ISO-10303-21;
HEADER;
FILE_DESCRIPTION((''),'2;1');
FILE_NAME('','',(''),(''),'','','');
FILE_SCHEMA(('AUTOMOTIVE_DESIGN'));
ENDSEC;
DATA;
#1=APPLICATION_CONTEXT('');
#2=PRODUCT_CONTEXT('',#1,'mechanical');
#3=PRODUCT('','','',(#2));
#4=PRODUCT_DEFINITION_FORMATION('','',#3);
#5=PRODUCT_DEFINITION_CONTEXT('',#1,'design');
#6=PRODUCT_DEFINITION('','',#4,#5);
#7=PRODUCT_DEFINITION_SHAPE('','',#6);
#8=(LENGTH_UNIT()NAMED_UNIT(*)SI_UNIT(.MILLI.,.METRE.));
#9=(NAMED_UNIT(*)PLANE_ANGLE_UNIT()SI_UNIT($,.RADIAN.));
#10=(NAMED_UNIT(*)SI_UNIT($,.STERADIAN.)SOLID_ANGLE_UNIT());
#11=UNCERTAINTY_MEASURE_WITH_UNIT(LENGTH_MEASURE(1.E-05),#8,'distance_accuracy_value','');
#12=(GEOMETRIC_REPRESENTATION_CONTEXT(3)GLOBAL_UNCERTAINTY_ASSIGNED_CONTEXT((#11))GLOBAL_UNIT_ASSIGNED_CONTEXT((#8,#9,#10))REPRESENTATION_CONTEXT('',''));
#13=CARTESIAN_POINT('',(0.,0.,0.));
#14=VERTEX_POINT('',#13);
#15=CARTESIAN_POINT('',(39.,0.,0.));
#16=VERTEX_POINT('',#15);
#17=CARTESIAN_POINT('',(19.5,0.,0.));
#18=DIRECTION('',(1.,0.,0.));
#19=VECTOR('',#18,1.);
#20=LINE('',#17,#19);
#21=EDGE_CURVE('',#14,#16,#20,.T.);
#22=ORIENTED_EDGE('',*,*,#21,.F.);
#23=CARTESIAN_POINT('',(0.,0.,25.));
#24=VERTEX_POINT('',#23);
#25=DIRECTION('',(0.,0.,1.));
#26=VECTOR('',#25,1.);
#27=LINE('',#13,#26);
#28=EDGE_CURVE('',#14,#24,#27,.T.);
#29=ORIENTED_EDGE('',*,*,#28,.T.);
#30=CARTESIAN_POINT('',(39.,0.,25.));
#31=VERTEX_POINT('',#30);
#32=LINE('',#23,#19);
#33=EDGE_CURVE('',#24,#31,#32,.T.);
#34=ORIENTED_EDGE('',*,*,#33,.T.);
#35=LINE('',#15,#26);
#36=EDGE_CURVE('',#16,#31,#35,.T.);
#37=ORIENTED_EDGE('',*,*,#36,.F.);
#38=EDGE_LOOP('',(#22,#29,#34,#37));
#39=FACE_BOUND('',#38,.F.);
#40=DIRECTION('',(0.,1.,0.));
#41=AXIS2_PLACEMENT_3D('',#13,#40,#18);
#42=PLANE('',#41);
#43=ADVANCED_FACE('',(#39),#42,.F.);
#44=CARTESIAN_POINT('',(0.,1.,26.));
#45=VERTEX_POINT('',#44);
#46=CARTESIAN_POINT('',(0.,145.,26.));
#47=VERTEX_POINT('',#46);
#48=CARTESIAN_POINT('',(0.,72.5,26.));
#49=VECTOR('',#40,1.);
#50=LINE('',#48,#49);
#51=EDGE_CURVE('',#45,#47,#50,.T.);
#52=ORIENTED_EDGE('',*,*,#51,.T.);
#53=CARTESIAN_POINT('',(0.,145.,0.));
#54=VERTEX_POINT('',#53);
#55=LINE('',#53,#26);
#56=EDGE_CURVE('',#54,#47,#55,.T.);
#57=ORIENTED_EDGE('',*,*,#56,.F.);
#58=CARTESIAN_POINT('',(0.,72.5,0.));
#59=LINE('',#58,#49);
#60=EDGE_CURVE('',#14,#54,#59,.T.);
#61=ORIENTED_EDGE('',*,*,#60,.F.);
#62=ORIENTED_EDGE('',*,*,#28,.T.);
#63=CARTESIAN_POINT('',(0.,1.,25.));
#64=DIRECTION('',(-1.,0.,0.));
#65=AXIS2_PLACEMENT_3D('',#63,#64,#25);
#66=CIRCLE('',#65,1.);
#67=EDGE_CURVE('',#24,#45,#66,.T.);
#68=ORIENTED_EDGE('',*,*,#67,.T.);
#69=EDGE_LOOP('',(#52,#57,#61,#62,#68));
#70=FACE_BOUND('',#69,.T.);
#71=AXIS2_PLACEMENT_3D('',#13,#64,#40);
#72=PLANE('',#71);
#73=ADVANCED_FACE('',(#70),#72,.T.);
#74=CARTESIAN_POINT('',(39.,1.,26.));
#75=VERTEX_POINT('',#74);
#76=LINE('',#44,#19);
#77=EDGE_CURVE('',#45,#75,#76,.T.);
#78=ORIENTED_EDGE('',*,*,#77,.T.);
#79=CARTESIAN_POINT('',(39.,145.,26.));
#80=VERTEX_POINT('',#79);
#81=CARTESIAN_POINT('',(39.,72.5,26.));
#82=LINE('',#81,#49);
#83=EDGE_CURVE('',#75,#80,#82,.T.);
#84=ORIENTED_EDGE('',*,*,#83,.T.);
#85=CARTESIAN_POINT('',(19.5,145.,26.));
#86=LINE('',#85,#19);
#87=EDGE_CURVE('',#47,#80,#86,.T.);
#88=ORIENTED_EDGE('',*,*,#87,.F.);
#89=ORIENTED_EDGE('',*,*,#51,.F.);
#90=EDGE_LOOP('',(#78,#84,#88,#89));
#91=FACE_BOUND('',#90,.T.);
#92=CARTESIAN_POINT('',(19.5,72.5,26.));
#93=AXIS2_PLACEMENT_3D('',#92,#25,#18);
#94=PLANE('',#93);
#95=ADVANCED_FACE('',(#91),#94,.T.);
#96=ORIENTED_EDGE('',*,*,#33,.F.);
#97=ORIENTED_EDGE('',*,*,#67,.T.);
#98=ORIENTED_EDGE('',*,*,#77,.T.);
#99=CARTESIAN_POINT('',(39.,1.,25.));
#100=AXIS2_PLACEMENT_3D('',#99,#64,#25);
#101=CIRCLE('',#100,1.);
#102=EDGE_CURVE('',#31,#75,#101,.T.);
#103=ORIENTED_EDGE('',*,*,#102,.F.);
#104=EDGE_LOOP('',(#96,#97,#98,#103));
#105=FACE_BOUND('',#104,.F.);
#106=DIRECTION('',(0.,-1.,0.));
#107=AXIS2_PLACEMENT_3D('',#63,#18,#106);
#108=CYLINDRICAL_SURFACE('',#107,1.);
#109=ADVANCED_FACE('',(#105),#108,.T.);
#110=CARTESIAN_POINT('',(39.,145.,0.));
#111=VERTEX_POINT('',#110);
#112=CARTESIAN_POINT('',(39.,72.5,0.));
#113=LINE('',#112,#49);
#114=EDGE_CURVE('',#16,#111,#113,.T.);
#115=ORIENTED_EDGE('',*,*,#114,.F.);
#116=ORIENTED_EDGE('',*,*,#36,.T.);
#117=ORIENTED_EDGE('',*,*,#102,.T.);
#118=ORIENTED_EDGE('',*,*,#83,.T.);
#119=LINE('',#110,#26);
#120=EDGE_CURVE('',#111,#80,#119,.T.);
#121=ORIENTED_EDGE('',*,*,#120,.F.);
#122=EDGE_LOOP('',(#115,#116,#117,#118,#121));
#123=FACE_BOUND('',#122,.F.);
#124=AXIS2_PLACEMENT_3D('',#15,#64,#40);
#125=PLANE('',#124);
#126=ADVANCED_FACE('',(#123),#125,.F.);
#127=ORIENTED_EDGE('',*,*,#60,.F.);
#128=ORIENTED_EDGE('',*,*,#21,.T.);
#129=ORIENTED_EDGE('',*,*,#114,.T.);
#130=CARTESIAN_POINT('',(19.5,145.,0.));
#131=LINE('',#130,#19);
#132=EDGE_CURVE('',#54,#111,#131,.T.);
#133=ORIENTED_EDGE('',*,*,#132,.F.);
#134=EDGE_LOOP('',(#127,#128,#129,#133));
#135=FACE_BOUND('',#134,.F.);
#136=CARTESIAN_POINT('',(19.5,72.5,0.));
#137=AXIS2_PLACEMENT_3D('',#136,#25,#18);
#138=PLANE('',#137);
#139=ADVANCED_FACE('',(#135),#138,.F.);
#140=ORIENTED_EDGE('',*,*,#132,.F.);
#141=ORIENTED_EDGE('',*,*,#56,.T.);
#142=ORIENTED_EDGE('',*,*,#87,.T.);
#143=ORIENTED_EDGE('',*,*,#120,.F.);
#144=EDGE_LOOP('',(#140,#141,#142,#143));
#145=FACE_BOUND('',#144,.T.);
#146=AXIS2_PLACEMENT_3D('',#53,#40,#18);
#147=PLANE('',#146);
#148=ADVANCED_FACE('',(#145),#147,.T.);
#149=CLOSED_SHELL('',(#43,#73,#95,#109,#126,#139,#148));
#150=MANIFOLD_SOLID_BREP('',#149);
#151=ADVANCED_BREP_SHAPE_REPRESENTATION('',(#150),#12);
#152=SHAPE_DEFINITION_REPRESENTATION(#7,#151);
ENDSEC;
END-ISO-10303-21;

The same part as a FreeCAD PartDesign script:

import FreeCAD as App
import Part
import Sketcher

V = App.Vector
Q = App.Units.Quantity


def edges_at(feature, points):
    """Names of the edges that pass closest to the given points."""
    edges = feature.Shape.Edges
    near = lambda p: min(range(len(edges)), key=lambda i: edges[i].distToShape(Part.Vertex(*p))[0])
    return sorted({f"Edge{near(p) + 1}" for p in points})

doc = App.newDocument("Part")
params = doc.addObject("Spreadsheet::Sheet", "Params")
for row, (alias, value) in enumerate([
    ("sketch1_width", "39 mm"),
    ("sketch1_height", "145 mm"),
    ("pad1_length", "26 mm"),
    ("fillet_radius", "1 mm"),
], start=1):
    params.set(f"A{row}", alias)
    params.set(f"B{row}", "=" + value)
    params.setAlias(f"B{row}", alias)

body = doc.addObject("PartDesign::Body", "Body")

sketch1 = doc.addObject("Sketcher::SketchObject", "Sketch")
body.addObject(sketch1)
sketch1.AttachmentSupport = (doc.XY_Plane, [""])
sketch1.MapMode = "FlatFace"
sketch1.addGeometry([
    Part.LineSegment(V(0, 145, 0), V(0, 0, 0)),
    Part.LineSegment(V(0, 0, 0), V(39, 0, 0)),
    Part.LineSegment(V(39, 0, 0), V(39, 145, 0)),
    Part.LineSegment(V(39, 145, 0), V(0, 145, 0)),
], False)
sketch1.addConstraint([
    Sketcher.Constraint("Coincident", 0, 2, 1, 1),
    Sketcher.Constraint("Coincident", 1, 2, 2, 1),
    Sketcher.Constraint("Coincident", 2, 2, 3, 1),
    Sketcher.Constraint("Coincident", 3, 2, 0, 1),
    Sketcher.Constraint("Vertical", 0),
    Sketcher.Constraint("Horizontal", 1),
    Sketcher.Constraint("Vertical", 2),
    Sketcher.Constraint("Horizontal", 3),
    Sketcher.Constraint("Coincident", 0, 2, -1, 1),
    Sketcher.Constraint("DistanceX", 1, 1, 1, 2, Q("39 mm")),
    Sketcher.Constraint("DistanceY", 0, 2, 0, 1, Q("145 mm")),
])
sketch1.setExpression("Constraints[9]", "Params.sketch1_width")
sketch1.setExpression("Constraints[10]", "Params.sketch1_height")
pad1 = doc.addObject("PartDesign::Pad", "Pad")
body.addObject(pad1)
pad1.Profile = sketch1
pad1.setExpression("Length", "Params.pad1_length")
doc.recompute()

fillet = doc.addObject("PartDesign::Fillet", "Fillet")
body.addObject(fillet)
fillet.Base = (pad1, edges_at(pad1, [(19.5, 0, 26)]))
fillet.setExpression("Radius", "Params.fillet_radius")

doc.recompute()
